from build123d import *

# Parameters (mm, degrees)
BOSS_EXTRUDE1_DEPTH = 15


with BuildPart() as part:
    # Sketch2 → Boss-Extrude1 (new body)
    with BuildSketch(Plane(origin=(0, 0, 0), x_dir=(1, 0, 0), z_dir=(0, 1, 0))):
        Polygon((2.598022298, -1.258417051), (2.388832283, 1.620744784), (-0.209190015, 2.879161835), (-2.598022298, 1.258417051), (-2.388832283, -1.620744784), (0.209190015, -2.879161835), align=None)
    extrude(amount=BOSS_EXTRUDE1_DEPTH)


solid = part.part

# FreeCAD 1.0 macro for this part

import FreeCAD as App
import Part
import Sketcher
from FreeCAD import Vector
Q = App.Units.Quantity

doc = App.newDocument("Part")
body = doc.addObject("PartDesign::Body", "Body")

# Sketch on XZ plane
sketch1 = doc.addObject("Sketcher::SketchObject", "Sketch")
body.addObject(sketch1)
sketch1.AttachmentSupport = (doc.XZ_Plane, [""])
sketch1.MapMode = "FlatFace"
sketch1.addGeometry(Part.LineSegment(Vector(2.6, 1.3, 0), Vector(2.4, -1.6, 0)), False)
sketch1.addGeometry(Part.LineSegment(Vector(2.4, -1.6, 0), Vector(-0.2, -2.9, 0)), False)
sketch1.addGeometry(Part.LineSegment(Vector(-0.2, -2.9, 0), Vector(-2.6, -1.3, 0)), False)
sketch1.addGeometry(Part.LineSegment(Vector(-2.6, -1.3, 0), Vector(-2.4, 1.6, 0)), False)
sketch1.addGeometry(Part.LineSegment(Vector(-2.4, 1.6, 0), Vector(0.2, 2.9, 0)), False)
sketch1.addGeometry(Part.LineSegment(Vector(0.2, 2.9, 0), Vector(2.6, 1.3, 0)), False)
sketch1.addConstraint(Sketcher.Constraint("Coincident", 0, 2, 1, 1))
sketch1.addConstraint(Sketcher.Constraint("Coincident", 1, 2, 2, 1))
sketch1.addConstraint(Sketcher.Constraint("Coincident", 2, 2, 3, 1))
sketch1.addConstraint(Sketcher.Constraint("Coincident", 3, 2, 4, 1))
sketch1.addConstraint(Sketcher.Constraint("Coincident", 4, 2, 5, 1))
sketch1.addConstraint(Sketcher.Constraint("Coincident", 5, 2, 0, 1))
sketch1.addConstraint(Sketcher.Constraint("Symmetric", 0, 2, 3, 2, -1, 1))
sketch1.addConstraint(Sketcher.Constraint("Symmetric", 1, 2, 4, 2, -1, 1))
sketch1.addConstraint(Sketcher.Constraint("Symmetric", 2, 2, 5, 2, -1, 1))
sketch1.addConstraint(Sketcher.Constraint("Equal", 0, 1))
sketch1.addConstraint(Sketcher.Constraint("Equal", 1, 2))
sketch1.addConstraint(Sketcher.Constraint("Distance", 0, Q("2.886751 mm")))
sketch1.addConstraint(Sketcher.Constraint("DistanceX", 1, 2, -1, 1, Q("0.20919 mm")))
sketch1.addConstraint(Sketcher.Constraint("DistanceY", 1, 2, -1, 1, Q("2.879162 mm")))
sketch1.addConstraint(Sketcher.Constraint("DistanceX", 2, 2, 3, 2, Q("0.20919 mm")))
pad1 = doc.addObject("PartDesign::Pad", "Pad")
body.addObject(pad1)
pad1.Profile = sketch1
pad1.Length = 15
pad1.Reversed = True

doc.recompute()
